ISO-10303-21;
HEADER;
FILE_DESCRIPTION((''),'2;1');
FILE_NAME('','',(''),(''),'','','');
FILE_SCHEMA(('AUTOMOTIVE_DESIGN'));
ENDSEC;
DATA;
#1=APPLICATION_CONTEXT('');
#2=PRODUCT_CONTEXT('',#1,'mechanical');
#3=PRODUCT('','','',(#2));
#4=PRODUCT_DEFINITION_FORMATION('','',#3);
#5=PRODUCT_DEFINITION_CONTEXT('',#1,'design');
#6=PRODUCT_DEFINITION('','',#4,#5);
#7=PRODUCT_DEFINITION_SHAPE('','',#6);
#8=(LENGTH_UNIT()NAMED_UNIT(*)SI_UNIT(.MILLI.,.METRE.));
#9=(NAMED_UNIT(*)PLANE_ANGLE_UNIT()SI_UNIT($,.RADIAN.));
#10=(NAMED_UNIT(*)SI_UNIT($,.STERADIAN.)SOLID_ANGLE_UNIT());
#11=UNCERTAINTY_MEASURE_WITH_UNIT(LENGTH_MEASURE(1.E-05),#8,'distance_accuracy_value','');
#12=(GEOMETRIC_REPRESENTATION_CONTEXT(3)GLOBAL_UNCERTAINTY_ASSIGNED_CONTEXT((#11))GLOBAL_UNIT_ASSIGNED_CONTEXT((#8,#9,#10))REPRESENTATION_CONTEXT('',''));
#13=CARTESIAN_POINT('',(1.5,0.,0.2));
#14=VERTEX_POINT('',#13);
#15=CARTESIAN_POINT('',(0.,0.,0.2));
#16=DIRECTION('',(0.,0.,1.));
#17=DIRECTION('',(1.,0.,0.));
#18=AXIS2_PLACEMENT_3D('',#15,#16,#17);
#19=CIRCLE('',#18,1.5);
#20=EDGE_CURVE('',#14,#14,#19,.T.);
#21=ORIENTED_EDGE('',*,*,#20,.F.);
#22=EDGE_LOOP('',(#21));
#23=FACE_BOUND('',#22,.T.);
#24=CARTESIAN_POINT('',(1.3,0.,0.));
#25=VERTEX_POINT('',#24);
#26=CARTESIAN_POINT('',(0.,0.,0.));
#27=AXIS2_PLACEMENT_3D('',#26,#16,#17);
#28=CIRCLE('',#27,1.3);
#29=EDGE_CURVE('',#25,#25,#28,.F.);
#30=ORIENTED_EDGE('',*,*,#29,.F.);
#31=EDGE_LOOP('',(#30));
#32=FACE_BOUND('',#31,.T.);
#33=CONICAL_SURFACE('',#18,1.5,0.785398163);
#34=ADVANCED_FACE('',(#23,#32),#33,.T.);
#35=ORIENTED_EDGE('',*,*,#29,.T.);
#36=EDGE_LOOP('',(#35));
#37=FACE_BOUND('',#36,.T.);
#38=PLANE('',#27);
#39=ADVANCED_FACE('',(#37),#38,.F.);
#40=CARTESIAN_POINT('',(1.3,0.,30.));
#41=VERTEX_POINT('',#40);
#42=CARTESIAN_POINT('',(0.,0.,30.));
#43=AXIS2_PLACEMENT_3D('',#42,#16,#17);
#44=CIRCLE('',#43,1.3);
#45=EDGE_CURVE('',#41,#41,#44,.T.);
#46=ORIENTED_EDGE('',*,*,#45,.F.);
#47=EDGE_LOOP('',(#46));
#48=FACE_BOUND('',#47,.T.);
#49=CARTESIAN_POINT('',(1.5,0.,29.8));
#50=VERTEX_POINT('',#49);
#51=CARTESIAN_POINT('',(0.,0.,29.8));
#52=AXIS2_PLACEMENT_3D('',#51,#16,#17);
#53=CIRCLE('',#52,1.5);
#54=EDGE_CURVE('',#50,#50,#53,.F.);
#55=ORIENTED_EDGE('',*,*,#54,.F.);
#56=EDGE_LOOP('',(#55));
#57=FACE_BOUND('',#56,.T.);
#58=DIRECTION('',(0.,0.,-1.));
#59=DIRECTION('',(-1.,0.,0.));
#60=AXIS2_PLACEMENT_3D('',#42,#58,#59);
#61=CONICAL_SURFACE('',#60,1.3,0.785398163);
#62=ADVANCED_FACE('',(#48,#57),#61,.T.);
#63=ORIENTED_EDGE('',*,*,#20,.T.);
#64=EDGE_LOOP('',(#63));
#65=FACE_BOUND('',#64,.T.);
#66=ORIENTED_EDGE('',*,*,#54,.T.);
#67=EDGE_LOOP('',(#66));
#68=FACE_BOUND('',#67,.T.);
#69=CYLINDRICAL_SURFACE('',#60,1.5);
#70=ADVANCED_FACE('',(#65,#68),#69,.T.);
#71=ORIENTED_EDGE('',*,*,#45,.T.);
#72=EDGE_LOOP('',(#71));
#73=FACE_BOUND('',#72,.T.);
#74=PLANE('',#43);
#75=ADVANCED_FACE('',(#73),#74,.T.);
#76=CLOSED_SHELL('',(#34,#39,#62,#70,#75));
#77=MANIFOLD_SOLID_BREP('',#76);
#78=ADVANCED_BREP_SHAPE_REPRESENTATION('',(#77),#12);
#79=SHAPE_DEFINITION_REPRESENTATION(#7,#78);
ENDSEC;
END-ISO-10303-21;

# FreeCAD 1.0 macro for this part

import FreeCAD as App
import Part
import Sketcher


def edges_at(feature, points):
    """Names of the edges that pass closest to the given points."""
    edges = feature.Shape.Edges
    near = lambda p: min(range(len(edges)), key=lambda i: edges[i].distToShape(Part.Vertex(*p))[0])
    return sorted({f"Edge{near(p) + 1}" for p in points})

doc = App.newDocument("Part")
body = doc.addObject("PartDesign::Body", "Body")

# Sketch on XY plane
sketch1 = body.newObject("Sketcher::SketchObject", "Sketch")
sketch1.AttachmentSupport = (doc.getObject("XY_Plane"), [""])
sketch1.MapMode = "FlatFace"
sketch1.addGeometry(Part.Circle(App.Vector(0, 0, 0), App.Vector(0, 0, 1), 1.5), False)
sketch1.addConstraint([
    Sketcher.Constraint("Coincident", 0, 3, -1, 1),
    Sketcher.Constraint("Diameter", 0, 3.0),
])
pad1 = body.newObject("PartDesign::Pad", "Pad")
pad1.Profile = sketch1
pad1.Length = 30
doc.recompute()

chamfer = body.newObject("PartDesign::Chamfer", "Chamfer")
chamfer.Base = (pad1, edges_at(pad1, [(-1.5, 0, 0), (-1.5, 0, 30)]))
chamfer.Size = 0.2

doc.recompute()
